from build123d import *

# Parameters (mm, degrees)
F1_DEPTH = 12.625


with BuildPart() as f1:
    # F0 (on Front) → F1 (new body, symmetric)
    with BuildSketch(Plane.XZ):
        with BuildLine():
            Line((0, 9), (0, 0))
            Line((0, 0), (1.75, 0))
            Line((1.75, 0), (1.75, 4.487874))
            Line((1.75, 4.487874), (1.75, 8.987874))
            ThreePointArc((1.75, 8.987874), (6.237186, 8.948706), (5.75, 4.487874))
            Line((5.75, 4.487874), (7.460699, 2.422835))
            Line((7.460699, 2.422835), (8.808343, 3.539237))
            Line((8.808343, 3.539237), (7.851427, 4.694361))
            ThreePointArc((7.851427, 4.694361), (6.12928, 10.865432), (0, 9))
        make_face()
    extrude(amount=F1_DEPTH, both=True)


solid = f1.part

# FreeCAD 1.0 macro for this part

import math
import FreeCAD as App
import Part
import Sketcher

doc = App.newDocument("Part")
body = doc.addObject("PartDesign::Body", "Body")

# Sketch on XZ plane
sketch1 = doc.addObject("Sketcher::SketchObject", "Sketch")
body.addObject(sketch1)
sketch1.AttachmentSupport = (doc.XZ_Plane, [""])
sketch1.MapMode = "FlatFace"
sketch1.addGeometry([
    Part.LineSegment(App.Vector(0, 9, 0), App.Vector(0, 0, 0)),  # 0
    Part.LineSegment(App.Vector(0, 0, 0), App.Vector(1.8, 0, 0)),  # 1
    Part.LineSegment(App.Vector(1.8, 0, 0), App.Vector(1.8, 9, 0)),  # 2
    Part.ArcOfCircle(Part.Circle(App.Vector(4, 6.9, 0), App.Vector(0, 0, 1), 3), math.radians(-54), math.radians(137)),  # 3
    Part.LineSegment(App.Vector(5.8, 4.5, 0), App.Vector(7.5, 2.4, 0)),  # 4
    Part.LineSegment(App.Vector(7.5, 2.4, 0), App.Vector(8.8, 3.5, 0)),  # 5
    Part.LineSegment(App.Vector(8.8, 3.5, 0), App.Vector(7.9, 4.7, 0)),  # 6
    Part.ArcOfCircle(Part.Circle(App.Vector(4, 6.9, 0), App.Vector(0, 0, 1), 4.5), math.radians(-30), math.radians(153)),  # 7
], False)
sketch1.addConstraint([
    Sketcher.Constraint("Coincident", 0, 2, 1, 1),
    Sketcher.Constraint("Coincident", 1, 2, 2, 1),
    Sketcher.Constraint("Coincident", 2, 2, 3, 2),
    Sketcher.Constraint("Coincident", 3, 1, 4, 1),
    Sketcher.Constraint("Coincident", 4, 2, 5, 1),
    Sketcher.Constraint("Coincident", 5, 2, 6, 1),
    Sketcher.Constraint("Coincident", 6, 2, 7, 1),
    Sketcher.Constraint("Coincident", 7, 2, 0, 1),
    Sketcher.Constraint("Vertical", 0),
    Sketcher.Constraint("Horizontal", 1),
    Sketcher.Constraint("Vertical", 2),
    Sketcher.Constraint("Coincident", 0, 2, -1, 1),
    Sketcher.Constraint("Coincident", 7, 3, 3, 3),
    Sketcher.Constraint("Perpendicular", 4, 5),
    Sketcher.Constraint("Perpendicular", 5, 6),
    Sketcher.Constraint("DistanceY", 0, 2, 0, 1, 9.0),
    Sketcher.Constraint("DistanceX", 1, 2, 3, 1, 4.0),
    Sketcher.Constraint("Distance", 6, 1.5),
    Sketcher.Constraint("DistanceX", 1, 1, 1, 2, 1.75),
    Sketcher.Constraint("DistanceY", 3, 1, 2, 2, 4.5),
    Sketcher.Constraint("Distance", 5, 1.749999),
    Sketcher.Constraint("Radius", 3, 3.02553),
    Sketcher.Constraint("Radius", 7, 4.478475),
    Sketcher.Constraint("DistanceX", -1, 1, 4, 2, 7.460699),
])
pad1 = doc.addObject("PartDesign::Pad", "Pad")
body.addObject(pad1)
pad1.Profile = sketch1
pad1.Length = 25.25
pad1.Midplane = True

doc.recompute()
